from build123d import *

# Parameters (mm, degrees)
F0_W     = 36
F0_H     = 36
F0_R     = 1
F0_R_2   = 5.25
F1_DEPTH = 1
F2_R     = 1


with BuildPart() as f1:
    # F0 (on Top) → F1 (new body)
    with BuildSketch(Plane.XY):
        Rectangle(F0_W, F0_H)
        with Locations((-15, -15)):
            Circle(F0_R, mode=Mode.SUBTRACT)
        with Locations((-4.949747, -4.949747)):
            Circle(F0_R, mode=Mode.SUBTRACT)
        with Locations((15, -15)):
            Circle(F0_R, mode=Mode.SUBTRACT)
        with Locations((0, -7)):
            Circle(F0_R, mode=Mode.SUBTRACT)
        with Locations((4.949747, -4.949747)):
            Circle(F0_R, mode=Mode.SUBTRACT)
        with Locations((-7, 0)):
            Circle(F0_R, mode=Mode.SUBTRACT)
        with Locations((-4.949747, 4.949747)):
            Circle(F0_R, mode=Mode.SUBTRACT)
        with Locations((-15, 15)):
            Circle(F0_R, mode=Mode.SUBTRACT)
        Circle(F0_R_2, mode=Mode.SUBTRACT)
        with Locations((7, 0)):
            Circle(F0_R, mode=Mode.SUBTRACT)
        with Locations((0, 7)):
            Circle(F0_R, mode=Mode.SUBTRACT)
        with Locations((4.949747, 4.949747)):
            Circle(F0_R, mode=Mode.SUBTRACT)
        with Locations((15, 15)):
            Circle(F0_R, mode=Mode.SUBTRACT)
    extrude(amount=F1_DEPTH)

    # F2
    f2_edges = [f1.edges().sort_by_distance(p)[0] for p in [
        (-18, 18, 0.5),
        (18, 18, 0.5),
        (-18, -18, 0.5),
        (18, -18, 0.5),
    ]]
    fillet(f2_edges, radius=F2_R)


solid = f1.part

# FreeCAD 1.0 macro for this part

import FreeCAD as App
import Part
import Sketcher

V = App.Vector
Q = App.Units.Quantity


def edges_at(feature, points):
    """Names of the edges that pass closest to the given points."""
    edges = feature.Shape.Edges
    near = lambda p: min(range(len(edges)), key=lambda i: edges[i].distToShape(Part.Vertex(*p))[0])
    return sorted({f"Edge{near(p) + 1}" for p in points})

doc = App.newDocument("Part")
params = doc.addObject("Spreadsheet::Sheet", "Params")
for row, (alias, value) in enumerate([
    ("sketch1_diameter", "2 mm"),
    ("sketch1_diameter2", "10.5 mm"),
    ("sketch1_width", "36 mm"),
    ("pad1_length", "1 mm"),
    ("fillet_radius", "1 mm"),
], start=1):
    params.set(f"A{row}", alias)
    params.set(f"B{row}", "=" + value)
    params.setAlias(f"B{row}", alias)

body = doc.addObject("PartDesign::Body", "Body")

sketch1 = doc.addObject("Sketcher::SketchObject", "Sketch")
body.addObject(sketch1)
sketch1.AttachmentSupport = (doc.XY_Plane, [""])
sketch1.MapMode = "FlatFace"
sketch1.addGeometry(Part.LineSegment(V(-18, 18, 0), V(-18, -18, 0)), False)
sketch1.addGeometry(Part.LineSegment(V(-18, -18, 0), V(18, -18, 0)), False)
sketch1.addGeometry(Part.LineSegment(V(18, -18, 0), V(18, 18, 0)), False)
sketch1.addGeometry(Part.LineSegment(V(18, 18, 0), V(-18, 18, 0)), False)
sketch1.addGeometry(Part.Circle(V(-15, -15, 0), V(0, 0, 1), 1), False)
sketch1.addGeometry(Part.Circle(V(-4.9, -4.9, 0), V(0, 0, 1), 1), False)
sketch1.addGeometry(Part.Circle(V(15, -15, 0), V(0, 0, 1), 1), False)
sketch1.addGeometry(Part.Circle(V(0, -7, 0), V(0, 0, 1), 1), False)
sketch1.addGeometry(Part.Circle(V(4.9, -4.9, 0), V(0, 0, 1), 1), False)
sketch1.addGeometry(Part.Circle(V(-7, 0, 0), V(0, 0, 1), 1), False)
sketch1.addGeometry(Part.Circle(V(-4.9, 4.9, 0), V(0, 0, 1), 1), False)
sketch1.addGeometry(Part.Circle(V(-15, 15, 0), V(0, 0, 1), 1), False)
sketch1.addGeometry(Part.Circle(V(0, 0, 0), V(0, 0, 1), 5.2), False)
sketch1.addGeometry(Part.Circle(V(7, 0, 0), V(0, 0, 1), 1), False)
sketch1.addGeometry(Part.Circle(V(0, 7, 0), V(0, 0, 1), 1), False)
sketch1.addGeometry(Part.Circle(V(4.9, 4.9, 0), V(0, 0, 1), 1), False)
sketch1.addGeometry(Part.Circle(V(15, 15, 0), V(0, 0, 1), 1), False)
sketch1.addConstraint(Sketcher.Constraint("Coincident", 0, 2, 1, 1))
sketch1.addConstraint(Sketcher.Constraint("Coincident", 1, 2, 2, 1))
sketch1.addConstraint(Sketcher.Constraint("Coincident", 2, 2, 3, 1))
sketch1.addConstraint(Sketcher.Constraint("Coincident", 3, 2, 0, 1))
sketch1.addConstraint(Sketcher.Constraint("Vertical", 0))
sketch1.addConstraint(Sketcher.Constraint("Horizontal", 1))
sketch1.addConstraint(Sketcher.Constraint("Vertical", 2))
sketch1.addConstraint(Sketcher.Constraint("Horizontal", 3))
sketch1.addConstraint(Sketcher.Constraint("Coincident", 12, 3, -1, 1))
sketch1.addConstraint(Sketcher.Constraint("Equal", 4, 5))
sketch1.addConstraint(Sketcher.Constraint("Equal", 5, 6))
sketch1.addConstraint(Sketcher.Constraint("Equal", 6, 7))
sketch1.addConstraint(Sketcher.Constraint("Equal", 7, 8))
sketch1.addConstraint(Sketcher.Constraint("Equal", 8, 9))
sketch1.addConstraint(Sketcher.Constraint("Equal", 9, 10))
sketch1.addConstraint(Sketcher.Constraint("Equal", 10, 11))
sketch1.addConstraint(Sketcher.Constraint("Equal", 11, 13))
sketch1.addConstraint(Sketcher.Constraint("Equal", 13, 14))
sketch1.addConstraint(Sketcher.Constraint("Equal", 14, 15))
sketch1.addConstraint(Sketcher.Constraint("Equal", 15, 16))
sketch1.addConstraint(Sketcher.Constraint("Symmetric", 8, 3, 10, 3, -1, 1))
sketch1.addConstraint(Sketcher.Constraint("Symmetric", 6, 3, 11, 3, -1, 1))
sketch1.addConstraint(Sketcher.Constraint("Symmetric", 9, 3, 13, 3, -1, 1))
sketch1.addConstraint(Sketcher.Constraint("Symmetric", 7, 3, 14, 3, -1, 1))
sketch1.addConstraint(Sketcher.Constraint("Symmetric", 5, 3, 15, 3, -1, 1))
sketch1.addConstraint(Sketcher.Constraint("Symmetric", 4, 3, 16, 3, -1, 1))
sketch1.addConstraint(Sketcher.Constraint("Symmetric", 0, 2, 2, 2, -1, 1))
sketch1.addConstraint(Sketcher.Constraint("Symmetric", 4, 3, 6, 3, -2))
sketch1.addConstraint(Sketcher.Constraint("Symmetric", 5, 3, 8, 3, -2))
sketch1.addConstraint(Sketcher.Constraint("PointOnObject", 7, 3, -2))
sketch1.addConstraint(Sketcher.Constraint("PointOnObject", 9, 3, -1))
sketch1.addConstraint(Sketcher.Constraint("Equal", 3, 0))
sketch1.addConstraint(Sketcher.Constraint("Diameter", 4, Q("2 mm")))
sketch1.addConstraint(Sketcher.Constraint("Diameter", 12, Q("10.5 mm")))
sketch1.addConstraint(Sketcher.Constraint("DistanceX", 1, 1, 1, 2, Q("36 mm")))
sketch1.addConstraint(Sketcher.Constraint("DistanceX", 4, 3, -1, 1, Q("15 mm")))
sketch1.addConstraint(Sketcher.Constraint("DistanceY", 4, 3, -1, 1, Q("15 mm")))
sketch1.addConstraint(Sketcher.Constraint("DistanceY", 7, 3, -1, 1, Q("7 mm")))
sketch1.addConstraint(Sketcher.Constraint("DistanceX", 9, 3, -1, 1, Q("7 mm")))
sketch1.addConstraint(Sketcher.Constraint("DistanceX", 5, 3, -1, 1, Q("4.949747 mm")))
sketch1.addConstraint(Sketcher.Constraint("DistanceY", 5, 3, -1, 1, Q("4.949747 mm")))
sketch1.setExpression("Constraints[32]", "Params.sketch1_diameter")
sketch1.setExpression("Constraints[33]", "Params.sketch1_diameter2")
sketch1.setExpression("Constraints[34]", "Params.sketch1_width")
pad1 = doc.addObject("PartDesign::Pad", "Pad")
body.addObject(pad1)
pad1.Profile = sketch1
pad1.setExpression("Length", "Params.pad1_length")
doc.recompute()

fillet = doc.addObject("PartDesign::Fillet", "Fillet")
body.addObject(fillet)
fillet.Base = (pad1, edges_at(pad1, [
    (-18, 18, 0.5),
    (18, 18, 0.5),
    (-18, -18, 0.5),
    (18, -18, 0.5),
]))
fillet.setExpression("Radius", "Params.fillet_radius")

doc.recompute()
